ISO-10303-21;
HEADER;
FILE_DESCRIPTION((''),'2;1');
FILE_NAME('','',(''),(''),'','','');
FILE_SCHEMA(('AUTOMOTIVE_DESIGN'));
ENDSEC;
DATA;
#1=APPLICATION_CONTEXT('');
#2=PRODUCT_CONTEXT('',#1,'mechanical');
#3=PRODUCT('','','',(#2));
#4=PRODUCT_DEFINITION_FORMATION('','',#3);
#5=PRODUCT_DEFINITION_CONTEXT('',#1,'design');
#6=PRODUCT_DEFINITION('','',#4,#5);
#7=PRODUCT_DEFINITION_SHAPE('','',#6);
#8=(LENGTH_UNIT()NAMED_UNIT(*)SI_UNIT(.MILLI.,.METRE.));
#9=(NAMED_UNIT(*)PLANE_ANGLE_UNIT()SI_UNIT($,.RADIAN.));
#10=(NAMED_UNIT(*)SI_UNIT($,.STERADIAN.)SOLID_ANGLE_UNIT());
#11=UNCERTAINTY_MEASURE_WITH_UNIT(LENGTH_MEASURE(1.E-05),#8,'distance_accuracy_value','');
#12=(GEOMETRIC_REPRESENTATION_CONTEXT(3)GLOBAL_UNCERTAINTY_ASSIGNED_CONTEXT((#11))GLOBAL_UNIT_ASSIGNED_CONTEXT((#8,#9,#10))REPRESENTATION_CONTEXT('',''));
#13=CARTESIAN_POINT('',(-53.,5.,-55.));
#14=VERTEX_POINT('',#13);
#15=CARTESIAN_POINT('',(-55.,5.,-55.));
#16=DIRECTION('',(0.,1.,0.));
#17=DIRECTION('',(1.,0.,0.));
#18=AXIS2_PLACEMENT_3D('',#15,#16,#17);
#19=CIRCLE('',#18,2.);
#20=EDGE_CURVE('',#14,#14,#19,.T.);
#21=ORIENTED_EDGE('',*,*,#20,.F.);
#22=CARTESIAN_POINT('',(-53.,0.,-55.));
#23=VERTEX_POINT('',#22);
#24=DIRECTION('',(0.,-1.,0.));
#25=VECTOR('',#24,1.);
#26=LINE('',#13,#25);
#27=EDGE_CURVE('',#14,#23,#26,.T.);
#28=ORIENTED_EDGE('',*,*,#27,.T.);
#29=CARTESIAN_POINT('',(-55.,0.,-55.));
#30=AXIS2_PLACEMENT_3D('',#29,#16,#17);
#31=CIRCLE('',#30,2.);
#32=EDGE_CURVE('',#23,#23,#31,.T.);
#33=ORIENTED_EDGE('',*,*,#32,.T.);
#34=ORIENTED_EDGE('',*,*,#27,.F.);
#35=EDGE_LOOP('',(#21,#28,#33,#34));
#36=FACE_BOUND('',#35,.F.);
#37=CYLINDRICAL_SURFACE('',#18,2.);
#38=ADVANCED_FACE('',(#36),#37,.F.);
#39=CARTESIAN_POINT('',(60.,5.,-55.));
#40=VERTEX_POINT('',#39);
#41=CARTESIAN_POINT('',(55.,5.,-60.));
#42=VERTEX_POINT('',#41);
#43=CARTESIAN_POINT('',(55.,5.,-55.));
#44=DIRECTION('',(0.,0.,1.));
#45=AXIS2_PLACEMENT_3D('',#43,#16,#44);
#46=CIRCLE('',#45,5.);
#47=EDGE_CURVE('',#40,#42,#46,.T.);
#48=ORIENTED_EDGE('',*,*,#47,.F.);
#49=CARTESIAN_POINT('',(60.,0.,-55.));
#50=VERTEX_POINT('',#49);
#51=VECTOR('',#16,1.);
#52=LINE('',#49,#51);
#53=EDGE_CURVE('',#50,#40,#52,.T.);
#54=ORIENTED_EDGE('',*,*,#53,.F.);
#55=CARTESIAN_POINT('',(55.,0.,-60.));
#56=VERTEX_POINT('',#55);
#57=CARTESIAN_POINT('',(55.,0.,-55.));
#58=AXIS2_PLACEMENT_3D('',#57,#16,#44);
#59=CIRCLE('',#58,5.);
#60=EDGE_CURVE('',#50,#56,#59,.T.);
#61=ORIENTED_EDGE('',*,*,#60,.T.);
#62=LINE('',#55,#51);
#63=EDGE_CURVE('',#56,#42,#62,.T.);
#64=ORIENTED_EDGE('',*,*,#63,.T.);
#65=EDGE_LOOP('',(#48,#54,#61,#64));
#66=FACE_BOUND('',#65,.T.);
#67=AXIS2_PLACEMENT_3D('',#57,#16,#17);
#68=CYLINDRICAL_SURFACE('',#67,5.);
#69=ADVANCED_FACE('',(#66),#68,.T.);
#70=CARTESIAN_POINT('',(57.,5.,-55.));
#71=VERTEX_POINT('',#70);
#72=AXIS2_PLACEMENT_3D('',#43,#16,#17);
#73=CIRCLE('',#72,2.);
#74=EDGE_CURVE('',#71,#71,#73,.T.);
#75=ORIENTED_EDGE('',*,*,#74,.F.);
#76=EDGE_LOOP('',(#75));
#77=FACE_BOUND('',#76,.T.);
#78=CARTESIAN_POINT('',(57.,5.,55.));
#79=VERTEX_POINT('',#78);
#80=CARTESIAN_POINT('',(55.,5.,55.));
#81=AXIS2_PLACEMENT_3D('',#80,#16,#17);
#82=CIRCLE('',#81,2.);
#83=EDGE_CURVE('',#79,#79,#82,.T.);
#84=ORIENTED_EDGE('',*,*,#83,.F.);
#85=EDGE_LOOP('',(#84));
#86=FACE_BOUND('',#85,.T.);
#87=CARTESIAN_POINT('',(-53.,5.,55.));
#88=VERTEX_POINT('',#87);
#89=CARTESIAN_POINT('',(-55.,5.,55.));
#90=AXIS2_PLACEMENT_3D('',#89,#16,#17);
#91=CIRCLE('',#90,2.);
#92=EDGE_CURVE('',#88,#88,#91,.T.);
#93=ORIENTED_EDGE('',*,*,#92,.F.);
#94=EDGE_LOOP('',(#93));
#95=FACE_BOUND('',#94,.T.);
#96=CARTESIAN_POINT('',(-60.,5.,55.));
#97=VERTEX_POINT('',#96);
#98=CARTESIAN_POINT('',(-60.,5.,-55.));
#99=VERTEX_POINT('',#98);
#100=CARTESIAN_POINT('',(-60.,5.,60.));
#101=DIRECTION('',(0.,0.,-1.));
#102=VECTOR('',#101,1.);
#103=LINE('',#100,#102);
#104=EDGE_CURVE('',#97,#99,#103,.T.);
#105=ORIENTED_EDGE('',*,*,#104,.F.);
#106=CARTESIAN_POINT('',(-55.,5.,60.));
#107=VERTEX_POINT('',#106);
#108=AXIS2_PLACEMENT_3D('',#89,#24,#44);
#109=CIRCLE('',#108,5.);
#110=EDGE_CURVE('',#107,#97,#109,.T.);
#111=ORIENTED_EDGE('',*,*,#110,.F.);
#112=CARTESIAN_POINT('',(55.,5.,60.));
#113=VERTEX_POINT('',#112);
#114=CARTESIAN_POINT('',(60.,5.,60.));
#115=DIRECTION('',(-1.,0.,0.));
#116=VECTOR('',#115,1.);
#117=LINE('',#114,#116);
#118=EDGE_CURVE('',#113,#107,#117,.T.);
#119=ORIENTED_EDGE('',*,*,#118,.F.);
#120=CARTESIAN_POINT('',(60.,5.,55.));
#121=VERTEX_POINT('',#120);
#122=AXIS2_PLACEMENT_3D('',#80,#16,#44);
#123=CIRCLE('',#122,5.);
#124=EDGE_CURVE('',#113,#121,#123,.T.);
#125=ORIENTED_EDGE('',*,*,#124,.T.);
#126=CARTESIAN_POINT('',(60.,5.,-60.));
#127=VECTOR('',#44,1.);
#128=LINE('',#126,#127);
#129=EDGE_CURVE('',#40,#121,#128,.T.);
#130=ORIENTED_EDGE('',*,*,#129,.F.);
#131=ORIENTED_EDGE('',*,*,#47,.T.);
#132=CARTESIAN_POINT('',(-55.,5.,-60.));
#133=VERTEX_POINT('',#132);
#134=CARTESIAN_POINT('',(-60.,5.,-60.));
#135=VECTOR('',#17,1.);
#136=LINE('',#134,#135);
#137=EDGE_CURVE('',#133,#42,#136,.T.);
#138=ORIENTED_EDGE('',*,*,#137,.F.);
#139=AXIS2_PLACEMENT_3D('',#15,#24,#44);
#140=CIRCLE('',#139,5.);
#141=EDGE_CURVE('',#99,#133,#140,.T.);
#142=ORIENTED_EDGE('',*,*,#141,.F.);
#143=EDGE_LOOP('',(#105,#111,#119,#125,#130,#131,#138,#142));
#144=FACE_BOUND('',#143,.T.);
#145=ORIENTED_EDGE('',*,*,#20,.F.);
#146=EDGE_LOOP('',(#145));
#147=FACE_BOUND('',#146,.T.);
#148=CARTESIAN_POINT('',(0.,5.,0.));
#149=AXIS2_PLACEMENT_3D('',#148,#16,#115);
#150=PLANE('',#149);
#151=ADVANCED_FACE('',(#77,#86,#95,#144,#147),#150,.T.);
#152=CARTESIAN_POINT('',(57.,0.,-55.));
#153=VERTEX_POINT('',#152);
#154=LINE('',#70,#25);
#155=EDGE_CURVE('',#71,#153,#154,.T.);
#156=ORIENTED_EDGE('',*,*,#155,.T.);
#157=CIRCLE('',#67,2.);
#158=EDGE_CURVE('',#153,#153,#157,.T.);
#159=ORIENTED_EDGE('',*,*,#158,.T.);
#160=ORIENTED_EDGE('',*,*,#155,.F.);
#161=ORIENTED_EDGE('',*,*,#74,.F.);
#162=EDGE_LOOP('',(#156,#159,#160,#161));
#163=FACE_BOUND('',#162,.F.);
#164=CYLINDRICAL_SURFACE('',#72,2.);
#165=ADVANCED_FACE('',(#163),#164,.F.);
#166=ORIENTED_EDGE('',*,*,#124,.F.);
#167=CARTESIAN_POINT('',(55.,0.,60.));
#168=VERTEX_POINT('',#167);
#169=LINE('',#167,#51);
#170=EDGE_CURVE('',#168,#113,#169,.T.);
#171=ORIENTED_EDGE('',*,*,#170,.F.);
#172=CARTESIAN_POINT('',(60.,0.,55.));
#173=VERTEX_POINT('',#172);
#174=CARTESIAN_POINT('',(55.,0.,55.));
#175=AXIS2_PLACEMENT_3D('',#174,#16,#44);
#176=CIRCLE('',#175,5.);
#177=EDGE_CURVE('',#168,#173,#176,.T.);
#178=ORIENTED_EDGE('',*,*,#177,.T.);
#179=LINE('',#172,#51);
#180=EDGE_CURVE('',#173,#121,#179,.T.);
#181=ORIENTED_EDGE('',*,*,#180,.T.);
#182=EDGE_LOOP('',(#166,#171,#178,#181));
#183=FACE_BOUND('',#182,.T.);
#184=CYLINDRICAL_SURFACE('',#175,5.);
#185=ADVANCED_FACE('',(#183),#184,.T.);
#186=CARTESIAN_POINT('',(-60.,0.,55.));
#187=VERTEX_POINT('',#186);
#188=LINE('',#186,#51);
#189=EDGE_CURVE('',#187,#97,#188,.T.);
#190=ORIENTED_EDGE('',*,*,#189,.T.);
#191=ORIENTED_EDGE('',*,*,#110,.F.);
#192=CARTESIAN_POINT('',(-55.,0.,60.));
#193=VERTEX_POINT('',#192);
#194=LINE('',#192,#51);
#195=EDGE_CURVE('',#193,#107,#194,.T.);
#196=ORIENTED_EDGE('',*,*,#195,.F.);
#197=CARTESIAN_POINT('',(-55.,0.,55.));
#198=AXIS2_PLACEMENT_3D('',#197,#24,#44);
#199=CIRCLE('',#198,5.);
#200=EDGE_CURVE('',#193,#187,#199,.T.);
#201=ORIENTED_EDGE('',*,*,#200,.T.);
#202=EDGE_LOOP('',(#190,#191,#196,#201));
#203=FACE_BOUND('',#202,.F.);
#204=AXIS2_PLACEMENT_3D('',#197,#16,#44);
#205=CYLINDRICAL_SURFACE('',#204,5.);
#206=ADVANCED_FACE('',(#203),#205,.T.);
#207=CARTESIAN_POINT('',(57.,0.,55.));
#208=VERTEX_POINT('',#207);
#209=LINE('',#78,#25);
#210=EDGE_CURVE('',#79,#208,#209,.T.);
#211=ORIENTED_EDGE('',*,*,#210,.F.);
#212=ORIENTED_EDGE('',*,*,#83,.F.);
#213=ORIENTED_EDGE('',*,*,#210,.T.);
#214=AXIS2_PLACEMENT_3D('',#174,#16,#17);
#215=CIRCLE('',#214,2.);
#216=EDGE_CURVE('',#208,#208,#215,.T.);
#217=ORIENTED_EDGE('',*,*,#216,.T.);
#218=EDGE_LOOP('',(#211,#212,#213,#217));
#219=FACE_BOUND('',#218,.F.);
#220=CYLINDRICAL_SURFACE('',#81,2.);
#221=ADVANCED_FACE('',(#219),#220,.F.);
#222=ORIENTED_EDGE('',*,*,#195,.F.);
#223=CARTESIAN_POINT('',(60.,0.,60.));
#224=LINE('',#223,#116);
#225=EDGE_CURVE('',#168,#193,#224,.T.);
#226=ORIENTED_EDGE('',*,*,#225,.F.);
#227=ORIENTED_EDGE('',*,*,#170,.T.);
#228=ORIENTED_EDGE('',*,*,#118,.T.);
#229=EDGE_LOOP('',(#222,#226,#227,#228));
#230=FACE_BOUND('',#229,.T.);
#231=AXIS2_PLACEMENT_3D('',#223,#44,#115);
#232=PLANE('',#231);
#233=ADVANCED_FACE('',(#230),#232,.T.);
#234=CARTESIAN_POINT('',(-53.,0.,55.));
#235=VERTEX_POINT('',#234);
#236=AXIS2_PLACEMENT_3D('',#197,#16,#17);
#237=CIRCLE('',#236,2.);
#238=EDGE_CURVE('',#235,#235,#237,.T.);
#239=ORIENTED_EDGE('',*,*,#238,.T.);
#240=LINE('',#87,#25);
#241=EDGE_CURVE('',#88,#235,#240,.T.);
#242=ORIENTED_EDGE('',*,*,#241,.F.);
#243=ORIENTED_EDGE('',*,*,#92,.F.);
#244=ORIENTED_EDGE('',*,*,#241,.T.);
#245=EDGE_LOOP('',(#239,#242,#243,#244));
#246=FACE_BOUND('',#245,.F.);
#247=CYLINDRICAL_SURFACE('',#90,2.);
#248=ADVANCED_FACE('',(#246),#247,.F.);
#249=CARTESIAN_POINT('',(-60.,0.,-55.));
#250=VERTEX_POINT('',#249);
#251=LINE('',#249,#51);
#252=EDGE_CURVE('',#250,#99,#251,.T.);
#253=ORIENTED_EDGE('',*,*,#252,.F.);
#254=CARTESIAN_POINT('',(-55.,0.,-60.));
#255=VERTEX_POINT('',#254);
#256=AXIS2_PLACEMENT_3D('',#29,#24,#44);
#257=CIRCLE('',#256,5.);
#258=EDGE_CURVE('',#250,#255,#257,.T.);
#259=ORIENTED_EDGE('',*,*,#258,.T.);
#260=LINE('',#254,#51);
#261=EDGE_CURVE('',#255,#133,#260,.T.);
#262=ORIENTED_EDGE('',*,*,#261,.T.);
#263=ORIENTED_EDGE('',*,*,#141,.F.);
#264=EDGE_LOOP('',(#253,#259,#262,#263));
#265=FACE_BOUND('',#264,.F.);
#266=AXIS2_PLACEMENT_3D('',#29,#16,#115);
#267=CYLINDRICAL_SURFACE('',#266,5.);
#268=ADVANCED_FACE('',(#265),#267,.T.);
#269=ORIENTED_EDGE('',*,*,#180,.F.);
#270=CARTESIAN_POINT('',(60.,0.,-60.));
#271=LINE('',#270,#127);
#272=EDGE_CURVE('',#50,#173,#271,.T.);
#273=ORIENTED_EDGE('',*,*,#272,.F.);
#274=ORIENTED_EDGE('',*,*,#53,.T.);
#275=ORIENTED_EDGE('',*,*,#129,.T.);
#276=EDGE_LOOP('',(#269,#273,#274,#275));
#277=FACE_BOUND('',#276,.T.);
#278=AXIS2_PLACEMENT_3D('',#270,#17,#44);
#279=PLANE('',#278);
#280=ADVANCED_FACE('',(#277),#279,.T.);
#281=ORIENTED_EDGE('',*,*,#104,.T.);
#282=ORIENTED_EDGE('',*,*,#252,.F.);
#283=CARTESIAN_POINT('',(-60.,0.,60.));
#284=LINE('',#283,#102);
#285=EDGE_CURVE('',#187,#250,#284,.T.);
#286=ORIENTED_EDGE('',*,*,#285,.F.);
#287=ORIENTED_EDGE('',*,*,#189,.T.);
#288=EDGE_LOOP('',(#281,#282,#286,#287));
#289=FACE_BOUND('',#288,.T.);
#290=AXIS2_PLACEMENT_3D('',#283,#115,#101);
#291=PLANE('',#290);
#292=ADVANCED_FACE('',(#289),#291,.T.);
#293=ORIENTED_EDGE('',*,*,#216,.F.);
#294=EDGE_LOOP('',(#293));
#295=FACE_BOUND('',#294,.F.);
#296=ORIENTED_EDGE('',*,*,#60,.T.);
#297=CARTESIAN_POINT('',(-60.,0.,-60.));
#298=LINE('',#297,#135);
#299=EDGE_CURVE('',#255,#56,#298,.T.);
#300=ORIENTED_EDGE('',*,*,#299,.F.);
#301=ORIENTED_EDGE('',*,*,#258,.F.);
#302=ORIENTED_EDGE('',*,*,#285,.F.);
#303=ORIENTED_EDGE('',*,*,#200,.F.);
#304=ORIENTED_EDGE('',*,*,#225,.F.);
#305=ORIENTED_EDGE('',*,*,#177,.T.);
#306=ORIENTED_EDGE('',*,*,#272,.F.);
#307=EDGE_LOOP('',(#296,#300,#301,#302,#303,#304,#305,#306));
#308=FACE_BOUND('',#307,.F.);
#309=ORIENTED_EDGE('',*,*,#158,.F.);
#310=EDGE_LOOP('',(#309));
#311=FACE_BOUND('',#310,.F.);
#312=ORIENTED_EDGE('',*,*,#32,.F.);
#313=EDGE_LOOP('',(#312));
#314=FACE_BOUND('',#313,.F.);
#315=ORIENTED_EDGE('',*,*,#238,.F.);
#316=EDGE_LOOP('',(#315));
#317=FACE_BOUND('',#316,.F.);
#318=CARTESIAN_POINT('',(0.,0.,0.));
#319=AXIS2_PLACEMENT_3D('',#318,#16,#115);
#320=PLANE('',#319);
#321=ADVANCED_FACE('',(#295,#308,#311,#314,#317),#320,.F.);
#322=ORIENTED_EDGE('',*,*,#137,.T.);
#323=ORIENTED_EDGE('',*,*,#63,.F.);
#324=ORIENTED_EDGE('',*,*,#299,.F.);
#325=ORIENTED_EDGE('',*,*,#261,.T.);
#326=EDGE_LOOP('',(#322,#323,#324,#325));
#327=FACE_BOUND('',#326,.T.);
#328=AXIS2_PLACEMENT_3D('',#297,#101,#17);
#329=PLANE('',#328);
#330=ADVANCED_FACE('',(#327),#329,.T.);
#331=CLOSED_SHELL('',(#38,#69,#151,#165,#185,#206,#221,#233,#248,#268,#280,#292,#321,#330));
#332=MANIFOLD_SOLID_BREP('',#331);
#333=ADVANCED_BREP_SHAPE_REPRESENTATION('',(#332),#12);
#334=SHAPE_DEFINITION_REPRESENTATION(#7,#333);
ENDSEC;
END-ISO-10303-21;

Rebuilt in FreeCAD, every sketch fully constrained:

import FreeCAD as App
import Part
import Sketcher

V = App.Vector
Q = App.Units.Quantity


def edges_at(feature, points):
    """Names of the edges that pass closest to the given points."""
    edges = feature.Shape.Edges
    near = lambda p: min(range(len(edges)), key=lambda i: edges[i].distToShape(Part.Vertex(*p))[0])
    return sorted({f"Edge{near(p) + 1}" for p in points})


def add_polygon(sketch, points):
    """Adds a closed chain of lines whose ends are joined by coincident constraints."""
    first, n = sketch.GeometryCount, len(points)
    for a, b in zip(points, points[1:] + points[:1]):
        sketch.addGeometry(Part.LineSegment(App.Vector(*a, 0), App.Vector(*b, 0)), False)
    for i in range(n):
        sketch.addConstraint(Sketcher.Constraint("Coincident", first + i, 2, first + (i + 1) % n, 1))

doc = App.newDocument("Part")
body = doc.addObject("PartDesign::Body", "Body")

# Sketch on XZ plane
sketch1 = doc.addObject("Sketcher::SketchObject", "Sketch")
body.addObject(sketch1)
sketch1.AttachmentSupport = (doc.XZ_Plane, [""])
sketch1.MapMode = "FlatFace"
add_polygon(sketch1, [(-60, 60), (60, 60), (60, -60), (-60, -60)])  # lines 0-3
sketch1.addConstraint([
    Sketcher.Constraint("Horizontal", 0),
    Sketcher.Constraint("Vertical", 1),
    Sketcher.Constraint("Horizontal", 2),
    Sketcher.Constraint("Vertical", 3),
    Sketcher.Constraint("Symmetric", 0, 2, 2, 2, -1, 1),
    Sketcher.Constraint("Equal", 2, 1),
    Sketcher.Constraint("DistanceX", 0, 1, 0, 2, Q("120 mm")),
])
pad1 = doc.addObject("PartDesign::Pad", "Pad")
body.addObject(pad1)
pad1.Profile = sketch1
pad1.Length = 5
pad1.Reversed = True

# Sketch on XZ plane
sketch2 = doc.addObject("Sketcher::SketchObject", "Sketch001")
body.addObject(sketch2)
sketch2.AttachmentSupport = (doc.XZ_Plane, [""])
sketch2.MapMode = "FlatFace"
sketch2.AttachmentOffset = App.Placement(V(0, 0, -5), App.Rotation())
sketch2.addGeometry([
    Part.Circle(V(-55, -55, 0), V(0, 0, 1), 2),
    Part.Circle(V(-55, 55, 0), V(0, 0, 1), 2),
    Part.Circle(V(55, -55, 0), V(0, 0, 1), 2),
    Part.Circle(V(55, 55, 0), V(0, 0, 1), 2),
], False)
sketch2.addConstraint([
    Sketcher.Constraint("Equal", 0, 1),
    Sketcher.Constraint("Equal", 1, 2),
    Sketcher.Constraint("Equal", 2, 3),
    Sketcher.Constraint("Symmetric", 1, 3, 2, 3, -1, 1),
    Sketcher.Constraint("Symmetric", 0, 3, 3, 3, -1, 1),
    Sketcher.Constraint("Symmetric", 0, 3, 2, 3, -2),
    Sketcher.Constraint("Diameter", 0, Q("4 mm")),
    Sketcher.Constraint("DistanceY", 0, 3, 1, 3, Q("110 mm")),
    Sketcher.Constraint("DistanceX", 0, 3, 2, 3, Q("110 mm")),
])
pocket1 = doc.addObject("PartDesign::Pocket", "Pocket")
body.addObject(pocket1)
pocket1.Profile = sketch2
pocket1.Length = 5
pocket1.Reversed = True
doc.recompute()

fillet = doc.addObject("PartDesign::Fillet", "Fillet")
body.addObject(fillet)
fillet.Base = (pocket1, edges_at(pocket1, [
    (60, 2.5, -60),
    (60, 2.5, 60),
    (-60, 2.5, -60),
    (-60, 2.5, 60),
]))
fillet.Radius = 5

doc.recompute()
